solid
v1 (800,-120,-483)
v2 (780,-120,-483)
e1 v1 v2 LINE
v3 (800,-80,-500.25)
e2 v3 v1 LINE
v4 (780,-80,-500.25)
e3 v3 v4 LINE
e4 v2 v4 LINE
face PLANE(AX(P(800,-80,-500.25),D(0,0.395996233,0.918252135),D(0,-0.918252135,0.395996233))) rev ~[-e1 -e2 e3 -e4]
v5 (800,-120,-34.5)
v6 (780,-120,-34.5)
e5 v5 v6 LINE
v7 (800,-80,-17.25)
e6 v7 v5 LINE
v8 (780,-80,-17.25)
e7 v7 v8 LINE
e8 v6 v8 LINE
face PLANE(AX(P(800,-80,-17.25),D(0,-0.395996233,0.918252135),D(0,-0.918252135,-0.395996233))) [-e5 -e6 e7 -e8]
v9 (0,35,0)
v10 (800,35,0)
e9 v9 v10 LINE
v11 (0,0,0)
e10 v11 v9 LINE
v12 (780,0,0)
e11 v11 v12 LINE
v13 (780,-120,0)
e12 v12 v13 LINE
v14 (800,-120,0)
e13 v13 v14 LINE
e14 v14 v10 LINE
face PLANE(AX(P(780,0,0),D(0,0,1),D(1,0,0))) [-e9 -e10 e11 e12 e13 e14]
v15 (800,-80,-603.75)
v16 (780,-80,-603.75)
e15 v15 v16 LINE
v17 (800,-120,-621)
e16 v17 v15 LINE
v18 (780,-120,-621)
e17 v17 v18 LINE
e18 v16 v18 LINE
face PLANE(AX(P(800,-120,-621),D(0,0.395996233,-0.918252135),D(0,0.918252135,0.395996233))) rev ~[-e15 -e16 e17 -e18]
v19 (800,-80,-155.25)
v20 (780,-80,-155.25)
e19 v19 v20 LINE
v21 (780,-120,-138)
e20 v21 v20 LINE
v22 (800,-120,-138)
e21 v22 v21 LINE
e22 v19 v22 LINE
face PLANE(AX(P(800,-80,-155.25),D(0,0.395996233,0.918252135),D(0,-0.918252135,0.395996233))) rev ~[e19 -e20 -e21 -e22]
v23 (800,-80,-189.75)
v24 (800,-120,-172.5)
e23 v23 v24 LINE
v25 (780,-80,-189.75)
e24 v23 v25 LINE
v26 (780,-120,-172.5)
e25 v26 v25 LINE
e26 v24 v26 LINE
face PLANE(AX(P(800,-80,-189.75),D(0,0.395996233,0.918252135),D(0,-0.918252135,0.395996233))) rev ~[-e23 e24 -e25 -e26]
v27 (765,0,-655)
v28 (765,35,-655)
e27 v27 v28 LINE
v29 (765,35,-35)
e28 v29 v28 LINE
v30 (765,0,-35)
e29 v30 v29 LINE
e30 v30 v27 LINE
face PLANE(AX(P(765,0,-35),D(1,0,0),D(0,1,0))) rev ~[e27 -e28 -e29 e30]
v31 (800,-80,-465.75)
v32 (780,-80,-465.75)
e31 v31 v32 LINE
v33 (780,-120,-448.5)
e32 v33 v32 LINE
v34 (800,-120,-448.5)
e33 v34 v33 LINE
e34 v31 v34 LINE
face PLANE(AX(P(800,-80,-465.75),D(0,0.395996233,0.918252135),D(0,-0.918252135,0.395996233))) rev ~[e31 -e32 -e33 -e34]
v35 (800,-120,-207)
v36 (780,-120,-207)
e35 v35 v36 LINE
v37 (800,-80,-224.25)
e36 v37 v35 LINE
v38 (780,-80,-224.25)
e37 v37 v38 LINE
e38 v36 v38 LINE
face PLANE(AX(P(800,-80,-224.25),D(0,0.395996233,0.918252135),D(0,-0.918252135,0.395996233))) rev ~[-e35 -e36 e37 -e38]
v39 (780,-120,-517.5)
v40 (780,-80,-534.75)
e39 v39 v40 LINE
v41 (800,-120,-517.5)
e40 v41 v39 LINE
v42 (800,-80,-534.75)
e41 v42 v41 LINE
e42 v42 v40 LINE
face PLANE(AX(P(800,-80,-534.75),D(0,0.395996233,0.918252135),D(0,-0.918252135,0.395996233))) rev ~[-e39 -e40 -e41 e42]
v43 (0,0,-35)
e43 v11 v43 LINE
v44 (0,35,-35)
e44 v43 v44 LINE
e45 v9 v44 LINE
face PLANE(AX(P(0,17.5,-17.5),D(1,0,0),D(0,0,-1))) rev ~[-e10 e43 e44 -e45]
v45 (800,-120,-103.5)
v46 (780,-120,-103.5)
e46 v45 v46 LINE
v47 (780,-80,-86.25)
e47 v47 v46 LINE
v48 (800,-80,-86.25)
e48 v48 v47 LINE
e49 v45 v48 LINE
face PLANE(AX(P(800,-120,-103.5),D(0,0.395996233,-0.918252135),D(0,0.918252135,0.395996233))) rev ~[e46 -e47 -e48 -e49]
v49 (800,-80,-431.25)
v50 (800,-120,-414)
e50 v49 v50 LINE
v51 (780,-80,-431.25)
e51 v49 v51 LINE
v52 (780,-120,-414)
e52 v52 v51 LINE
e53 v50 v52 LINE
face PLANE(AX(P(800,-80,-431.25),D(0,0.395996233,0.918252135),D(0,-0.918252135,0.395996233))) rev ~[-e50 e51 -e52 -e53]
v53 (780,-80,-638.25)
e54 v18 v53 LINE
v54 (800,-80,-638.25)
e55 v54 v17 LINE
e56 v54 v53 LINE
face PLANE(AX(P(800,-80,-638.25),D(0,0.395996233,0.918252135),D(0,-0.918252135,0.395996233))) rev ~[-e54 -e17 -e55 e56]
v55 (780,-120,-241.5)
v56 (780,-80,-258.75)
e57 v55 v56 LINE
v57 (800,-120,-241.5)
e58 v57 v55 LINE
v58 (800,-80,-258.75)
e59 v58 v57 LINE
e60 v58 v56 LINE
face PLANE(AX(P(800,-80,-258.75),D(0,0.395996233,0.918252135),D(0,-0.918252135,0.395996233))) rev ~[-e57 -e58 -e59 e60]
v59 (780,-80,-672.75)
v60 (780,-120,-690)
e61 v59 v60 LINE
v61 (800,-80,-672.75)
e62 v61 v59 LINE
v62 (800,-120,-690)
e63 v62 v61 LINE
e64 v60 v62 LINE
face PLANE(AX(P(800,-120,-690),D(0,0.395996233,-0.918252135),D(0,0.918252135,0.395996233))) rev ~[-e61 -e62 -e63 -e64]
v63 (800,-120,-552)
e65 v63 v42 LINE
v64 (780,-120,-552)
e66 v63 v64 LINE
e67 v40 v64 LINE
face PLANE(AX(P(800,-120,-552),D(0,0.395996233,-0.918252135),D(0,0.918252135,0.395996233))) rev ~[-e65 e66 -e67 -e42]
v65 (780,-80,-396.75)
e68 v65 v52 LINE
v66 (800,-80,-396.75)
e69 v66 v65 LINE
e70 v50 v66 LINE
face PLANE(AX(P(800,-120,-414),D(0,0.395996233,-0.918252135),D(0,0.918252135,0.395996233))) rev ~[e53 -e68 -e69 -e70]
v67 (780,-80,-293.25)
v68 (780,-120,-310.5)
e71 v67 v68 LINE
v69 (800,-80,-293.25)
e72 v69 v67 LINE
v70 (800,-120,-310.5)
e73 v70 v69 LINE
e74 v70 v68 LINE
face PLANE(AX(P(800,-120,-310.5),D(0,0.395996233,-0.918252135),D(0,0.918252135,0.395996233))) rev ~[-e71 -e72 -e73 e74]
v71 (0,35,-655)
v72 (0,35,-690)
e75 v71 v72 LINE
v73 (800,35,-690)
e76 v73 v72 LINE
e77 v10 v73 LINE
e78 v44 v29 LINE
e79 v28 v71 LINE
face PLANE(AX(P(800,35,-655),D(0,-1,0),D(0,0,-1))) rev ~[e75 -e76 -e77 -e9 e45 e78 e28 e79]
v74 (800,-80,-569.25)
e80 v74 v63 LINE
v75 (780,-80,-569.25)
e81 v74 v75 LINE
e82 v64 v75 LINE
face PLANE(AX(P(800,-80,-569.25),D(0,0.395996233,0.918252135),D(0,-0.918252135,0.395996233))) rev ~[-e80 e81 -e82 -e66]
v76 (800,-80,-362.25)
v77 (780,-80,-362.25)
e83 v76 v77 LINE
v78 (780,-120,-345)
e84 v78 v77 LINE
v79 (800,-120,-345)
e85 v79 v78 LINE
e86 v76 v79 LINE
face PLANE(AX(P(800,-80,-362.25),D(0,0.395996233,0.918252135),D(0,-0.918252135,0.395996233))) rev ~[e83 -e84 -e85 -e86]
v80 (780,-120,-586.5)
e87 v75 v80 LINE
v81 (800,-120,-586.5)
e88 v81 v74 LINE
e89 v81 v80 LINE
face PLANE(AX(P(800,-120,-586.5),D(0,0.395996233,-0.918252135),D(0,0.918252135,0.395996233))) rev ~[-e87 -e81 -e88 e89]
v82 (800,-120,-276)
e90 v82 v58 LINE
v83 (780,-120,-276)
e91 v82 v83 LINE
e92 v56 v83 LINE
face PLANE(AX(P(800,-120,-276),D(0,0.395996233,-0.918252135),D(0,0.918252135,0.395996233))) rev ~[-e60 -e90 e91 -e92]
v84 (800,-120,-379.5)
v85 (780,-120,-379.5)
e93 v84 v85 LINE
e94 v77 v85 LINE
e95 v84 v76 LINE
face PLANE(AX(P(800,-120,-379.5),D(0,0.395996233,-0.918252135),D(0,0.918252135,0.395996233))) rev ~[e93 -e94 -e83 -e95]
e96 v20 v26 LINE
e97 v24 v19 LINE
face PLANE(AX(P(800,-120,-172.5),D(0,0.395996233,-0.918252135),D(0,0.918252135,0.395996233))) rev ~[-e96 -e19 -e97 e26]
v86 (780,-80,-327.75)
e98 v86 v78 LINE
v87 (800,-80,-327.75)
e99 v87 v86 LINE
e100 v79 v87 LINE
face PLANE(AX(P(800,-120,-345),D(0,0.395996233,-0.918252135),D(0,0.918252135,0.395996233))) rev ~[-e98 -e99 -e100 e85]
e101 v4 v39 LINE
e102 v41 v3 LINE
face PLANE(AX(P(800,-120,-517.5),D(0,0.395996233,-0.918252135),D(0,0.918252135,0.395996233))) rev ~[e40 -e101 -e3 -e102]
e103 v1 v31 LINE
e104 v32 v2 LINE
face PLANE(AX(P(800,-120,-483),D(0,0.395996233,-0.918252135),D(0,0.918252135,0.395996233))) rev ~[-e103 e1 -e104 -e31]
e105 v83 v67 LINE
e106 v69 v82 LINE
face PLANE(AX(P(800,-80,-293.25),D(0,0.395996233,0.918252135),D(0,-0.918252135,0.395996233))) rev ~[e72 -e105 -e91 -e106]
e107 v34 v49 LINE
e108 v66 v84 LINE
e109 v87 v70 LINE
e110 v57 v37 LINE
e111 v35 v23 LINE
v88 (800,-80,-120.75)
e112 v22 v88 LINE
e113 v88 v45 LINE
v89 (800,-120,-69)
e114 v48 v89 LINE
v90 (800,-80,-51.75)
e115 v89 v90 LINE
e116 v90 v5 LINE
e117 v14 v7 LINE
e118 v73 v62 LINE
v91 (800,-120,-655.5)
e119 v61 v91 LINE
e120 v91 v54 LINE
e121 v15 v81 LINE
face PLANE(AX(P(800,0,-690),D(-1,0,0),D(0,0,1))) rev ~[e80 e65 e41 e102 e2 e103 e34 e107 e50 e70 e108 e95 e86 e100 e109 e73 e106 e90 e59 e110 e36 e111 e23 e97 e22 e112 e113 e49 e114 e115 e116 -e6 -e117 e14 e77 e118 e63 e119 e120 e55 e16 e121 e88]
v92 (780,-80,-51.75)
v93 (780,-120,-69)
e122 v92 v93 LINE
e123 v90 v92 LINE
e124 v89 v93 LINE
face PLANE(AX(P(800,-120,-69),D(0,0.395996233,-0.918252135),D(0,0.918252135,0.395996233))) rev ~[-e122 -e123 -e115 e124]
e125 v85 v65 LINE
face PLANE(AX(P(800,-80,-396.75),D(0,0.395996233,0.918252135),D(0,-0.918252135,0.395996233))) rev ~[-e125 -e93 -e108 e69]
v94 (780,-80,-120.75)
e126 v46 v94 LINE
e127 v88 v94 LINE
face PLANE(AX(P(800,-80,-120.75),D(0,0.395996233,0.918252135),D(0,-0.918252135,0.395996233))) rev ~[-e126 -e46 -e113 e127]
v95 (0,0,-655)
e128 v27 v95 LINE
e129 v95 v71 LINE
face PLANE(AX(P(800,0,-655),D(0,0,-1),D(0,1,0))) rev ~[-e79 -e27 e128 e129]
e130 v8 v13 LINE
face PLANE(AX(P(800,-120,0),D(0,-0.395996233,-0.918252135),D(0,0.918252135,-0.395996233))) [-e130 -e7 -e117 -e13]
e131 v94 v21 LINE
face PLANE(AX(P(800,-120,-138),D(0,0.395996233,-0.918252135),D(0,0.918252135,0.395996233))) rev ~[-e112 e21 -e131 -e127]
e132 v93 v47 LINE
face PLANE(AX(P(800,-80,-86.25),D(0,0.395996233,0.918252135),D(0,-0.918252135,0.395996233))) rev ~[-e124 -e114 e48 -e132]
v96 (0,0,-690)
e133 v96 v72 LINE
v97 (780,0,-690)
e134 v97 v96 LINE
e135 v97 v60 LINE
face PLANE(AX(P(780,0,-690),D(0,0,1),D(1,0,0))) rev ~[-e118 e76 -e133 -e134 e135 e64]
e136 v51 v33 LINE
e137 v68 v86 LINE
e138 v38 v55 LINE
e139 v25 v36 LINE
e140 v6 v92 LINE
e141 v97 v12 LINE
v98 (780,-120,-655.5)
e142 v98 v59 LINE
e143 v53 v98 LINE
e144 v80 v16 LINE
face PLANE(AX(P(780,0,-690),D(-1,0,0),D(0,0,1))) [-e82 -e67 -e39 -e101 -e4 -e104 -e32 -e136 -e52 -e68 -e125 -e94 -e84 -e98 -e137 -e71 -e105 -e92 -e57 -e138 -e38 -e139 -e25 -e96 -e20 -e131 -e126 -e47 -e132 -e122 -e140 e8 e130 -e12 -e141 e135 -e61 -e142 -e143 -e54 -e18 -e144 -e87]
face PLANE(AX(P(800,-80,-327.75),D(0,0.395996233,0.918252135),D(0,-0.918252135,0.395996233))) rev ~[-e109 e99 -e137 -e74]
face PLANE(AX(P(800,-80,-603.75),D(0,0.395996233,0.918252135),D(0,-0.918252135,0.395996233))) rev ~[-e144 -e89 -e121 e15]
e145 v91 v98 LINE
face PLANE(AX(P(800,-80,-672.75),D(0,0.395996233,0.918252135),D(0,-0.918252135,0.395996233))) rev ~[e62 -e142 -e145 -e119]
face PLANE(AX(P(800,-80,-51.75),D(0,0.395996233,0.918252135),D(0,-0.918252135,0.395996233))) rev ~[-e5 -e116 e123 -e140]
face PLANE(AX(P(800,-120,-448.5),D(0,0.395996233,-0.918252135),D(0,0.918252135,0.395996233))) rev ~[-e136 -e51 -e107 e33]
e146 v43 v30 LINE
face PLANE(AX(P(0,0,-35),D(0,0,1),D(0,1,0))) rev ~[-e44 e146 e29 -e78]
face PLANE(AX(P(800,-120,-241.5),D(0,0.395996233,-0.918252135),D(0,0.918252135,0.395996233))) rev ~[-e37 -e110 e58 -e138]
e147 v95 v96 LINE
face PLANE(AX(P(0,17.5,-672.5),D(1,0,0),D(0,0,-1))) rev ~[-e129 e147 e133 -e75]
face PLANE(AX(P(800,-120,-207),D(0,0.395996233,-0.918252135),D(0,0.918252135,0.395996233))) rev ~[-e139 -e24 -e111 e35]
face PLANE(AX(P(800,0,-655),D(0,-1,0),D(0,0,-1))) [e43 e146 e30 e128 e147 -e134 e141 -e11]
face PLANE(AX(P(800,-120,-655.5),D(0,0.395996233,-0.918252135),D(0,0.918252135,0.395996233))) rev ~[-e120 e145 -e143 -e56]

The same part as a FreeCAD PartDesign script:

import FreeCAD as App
import Part
import Sketcher
from FreeCAD import Vector
Q = App.Units.Quantity


def add_polygon(sketch, points):
    """Adds a closed chain of lines whose ends are joined by coincident constraints."""
    first, n = sketch.GeometryCount, len(points)
    for a, b in zip(points, points[1:] + points[:1]):
        sketch.addGeometry(Part.LineSegment(App.Vector(*a, 0), App.Vector(*b, 0)), False)
    for i in range(n):
        sketch.addConstraint(Sketcher.Constraint("Coincident", first + i, 2, first + (i + 1) % n, 1))

doc = App.newDocument("Part")
params = doc.addObject("Spreadsheet::Sheet", "Params")
for row, (alias, value) in enumerate([
    ("sketch1_width", "35 mm"),
    ("pad1_length", "800 mm"),
    ("sketch2_width", "35 mm"),
    ("pad2_length", "620 mm"),
    ("sketch3_width", "35 mm"),
    ("pad3_length", "800 mm"),
    ("sketch4_width", "20 mm"),
    ("sketch4_height", "690 mm"),
    ("pad4_length", "120 mm"),
    ("sketch5_height", "34.5 mm"),
], start=1):
    params.set(f"A{row}", alias)
    params.set(f"B{row}", "=" + value)
    params.setAlias(f"B{row}", alias)

body = doc.addObject("PartDesign::Body", "Body")

# Sketch on YZ plane
sketch1 = body.newObject("Sketcher::SketchObject", "Sketch")
sketch1.AttachmentSupport = (doc.getObject("YZ_Plane"), [""])
sketch1.MapMode = "FlatFace"
add_polygon(sketch1, [(35, 0), (0, 0), (0, -35), (35, -35)])  # lines 0-3
sketch1.addConstraint(Sketcher.Constraint("Horizontal", 0))
sketch1.addConstraint(Sketcher.Constraint("Vertical", 1))
sketch1.addConstraint(Sketcher.Constraint("Horizontal", 2))
sketch1.addConstraint(Sketcher.Constraint("Vertical", 3))
sketch1.addConstraint(Sketcher.Constraint("Coincident", 0, 2, -1, 1))
sketch1.addConstraint(Sketcher.Constraint("Equal", 2, 1))
sketch1.addConstraint(Sketcher.Constraint("DistanceX", 0, 2, 0, 1, Q("35 mm")))
sketch1.setExpression("Constraints[10]", "Params.sketch1_width")
pad1 = body.newObject("PartDesign::Pad", "Pad")
pad1.Profile = sketch1
pad1.setExpression("Length", "Params.pad1_length")

# Sketch on XY plane
sketch2 = body.newObject("Sketcher::SketchObject", "Sketch001")
sketch2.AttachmentSupport = (doc.getObject("XY_Plane"), [""])
sketch2.MapMode = "FlatFace"
sketch2.AttachmentOffset = App.Placement(Vector(0, 0, -35), App.Rotation())
add_polygon(sketch2, [(800, 35), (800, 0), (765, 0), (765, 35)])  # lines 0-3
sketch2.addConstraint(Sketcher.Constraint("Vertical", 0))
sketch2.addConstraint(Sketcher.Constraint("Horizontal", 1))
sketch2.addConstraint(Sketcher.Constraint("Vertical", 2))
sketch2.addConstraint(Sketcher.Constraint("Horizontal", 3))
sketch2.addConstraint(Sketcher.Constraint("PointOnObject", 0, 2, -1))
sketch2.addConstraint(Sketcher.Constraint("Equal", 3, 0))
sketch2.addConstraint(Sketcher.Constraint("DistanceX", 1, 2, 1, 1, Q("35 mm")))
sketch2.addConstraint(Sketcher.Constraint("DistanceX", -1, 1, 0, 2, Q("800 mm")))
sketch2.setExpression("Constraints[10]", "Params.sketch2_width")
pad2 = body.newObject("PartDesign::Pad", "Pad001")
pad2.Profile = sketch2
pad2.setExpression("Length", "Params.pad2_length")
pad2.Reversed = True

# Sketch on YZ plane
sketch3 = body.newObject("Sketcher::SketchObject", "Sketch002")
sketch3.AttachmentSupport = (doc.getObject("YZ_Plane"), [""])
sketch3.MapMode = "FlatFace"
sketch3.AttachmentOffset = App.Placement(Vector(0, 0, 800), App.Rotation())
add_polygon(sketch3, [(35, -655), (0, -655), (0, -690), (35, -690)])  # lines 0-3
sketch3.addConstraint(Sketcher.Constraint("Horizontal", 0))
sketch3.addConstraint(Sketcher.Constraint("Vertical", 1))
sketch3.addConstraint(Sketcher.Constraint("Horizontal", 2))
sketch3.addConstraint(Sketcher.Constraint("Vertical", 3))
sketch3.addConstraint(Sketcher.Constraint("PointOnObject", 0, 2, -2))
sketch3.addConstraint(Sketcher.Constraint("Equal", 2, 1))
sketch3.addConstraint(Sketcher.Constraint("DistanceX", 0, 2, 0, 1, Q("35 mm")))
sketch3.addConstraint(Sketcher.Constraint("DistanceY", 0, 2, -1, 1, Q("655 mm")))
sketch3.setExpression("Constraints[10]", "Params.sketch3_width")
pad3 = body.newObject("PartDesign::Pad", "Pad002")
pad3.Profile = sketch3
pad3.setExpression("Length", "Params.pad3_length")
pad3.Reversed = True

# Sketch on XZ plane
sketch4 = body.newObject("Sketcher::SketchObject", "Sketch003")
sketch4.AttachmentSupport = (doc.getObject("XZ_Plane"), [""])
sketch4.MapMode = "FlatFace"
add_polygon(sketch4, [(780, 0), (780, -690), (800, -690), (800, 0)])  # lines 0-3
sketch4.addConstraint(Sketcher.Constraint("Vertical", 0))
sketch4.addConstraint(Sketcher.Constraint("Horizontal", 1))
sketch4.addConstraint(Sketcher.Constraint("Vertical", 2))
sketch4.addConstraint(Sketcher.Constraint("Horizontal", 3))
sketch4.addConstraint(Sketcher.Constraint("PointOnObject", 2, 2, -1))
sketch4.addConstraint(Sketcher.Constraint("DistanceX", 1, 1, 1, 2, Q("20 mm")))
sketch4.addConstraint(Sketcher.Constraint("DistanceY", 0, 2, 0, 1, Q("690 mm")))
sketch4.addConstraint(Sketcher.Constraint("DistanceX", -1, 1, 0, 2, Q("780 mm")))
sketch4.setExpression("Constraints[9]", "Params.sketch4_width")
sketch4.setExpression("Constraints[10]", "Params.sketch4_height")
pad4 = body.newObject("PartDesign::Pad", "Pad003")
pad4.Profile = sketch4
pad4.setExpression("Length", "Params.pad4_length")

# Sketch on YZ plane
sketch5 = body.newObject("Sketcher::SketchObject", "Sketch004")
sketch5.AttachmentSupport = (doc.getObject("YZ_Plane"), [""])
sketch5.MapMode = "FlatFace"
sketch5.AttachmentOffset = App.Placement(Vector(0, 0, 800), App.Rotation())
add_polygon(sketch5, [(-80, -51.75), (-120, -34.5), (-120, -69)])  # lines 0-2
add_polygon(sketch5, [(-80, -86.25), (-120, -69), (-120, -103.5)])  # lines 3-5
add_polygon(sketch5, [(-80, -120.75), (-120, -103.5), (-120, -138)])  # lines 6-8
add_polygon(sketch5, [(-80, -155.25), (-120, -138), (-120, -172.5)])  # lines 9-11
add_polygon(sketch5, [(-80, -189.75), (-120, -172.5), (-120, -207)])  # lines 12-14
add_polygon(sketch5, [(-80, -224.25), (-120, -207), (-120, -241.5)])  # lines 15-17
add_polygon(sketch5, [(-80, -258.75), (-120, -241.5), (-120, -276)])  # lines 18-20
add_polygon(sketch5, [(-80, -293.25), (-120, -276), (-120, -310.5)])  # lines 21-23
add_polygon(sketch5, [(-80, -327.75), (-120, -310.5), (-120, -345)])  # lines 24-26
add_polygon(sketch5, [(-80, -362.25), (-120, -345), (-120, -379.5)])  # lines 27-29
add_polygon(sketch5, [(-80, -396.75), (-120, -379.5), (-120, -414)])  # lines 30-32
add_polygon(sketch5, [(-80, -431.25), (-120, -414), (-120, -448.5)])  # lines 33-35
add_polygon(sketch5, [(-80, -465.75), (-120, -448.5), (-120, -483)])  # lines 36-38
add_polygon(sketch5, [(-80, -500.25), (-120, -483), (-120, -517.5)])  # lines 39-41
add_polygon(sketch5, [(-80, -534.75), (-120, -517.5), (-120, -552)])  # lines 42-44
add_polygon(sketch5, [(-80, -569.25), (-120, -552), (-120, -586.5)])  # lines 45-47
add_polygon(sketch5, [(-80, -603.75), (-120, -586.5), (-120, -621)])  # lines 48-50
add_polygon(sketch5, [(-80, -638.25), (-120, -621), (-120, -655.5)])  # lines 51-53
add_polygon(sketch5, [(-80, -672.75), (-120, -655.5), (-120, -690)])  # lines 54-56
add_polygon(sketch5, [(-120, -34.5), (-80, -17.25), (-120, 0)])  # lines 57-59
sketch5.addConstraint(Sketcher.Constraint("Vertical", 1))
sketch5.addConstraint(Sketcher.Constraint("Vertical", 4))
sketch5.addConstraint(Sketcher.Constraint("Vertical", 7))
sketch5.addConstraint(Sketcher.Constraint("Vertical", 10))
sketch5.addConstraint(Sketcher.Constraint("Vertical", 13))
sketch5.addConstraint(Sketcher.Constraint("Vertical", 16))
sketch5.addConstraint(Sketcher.Constraint("Vertical", 19))
sketch5.addConstraint(Sketcher.Constraint("Vertical", 22))
sketch5.addConstraint(Sketcher.Constraint("Vertical", 25))
sketch5.addConstraint(Sketcher.Constraint("Vertical", 28))
sketch5.addConstraint(Sketcher.Constraint("Vertical", 31))
sketch5.addConstraint(Sketcher.Constraint("Vertical", 34))
sketch5.addConstraint(Sketcher.Constraint("Vertical", 37))
sketch5.addConstraint(Sketcher.Constraint("Vertical", 40))
sketch5.addConstraint(Sketcher.Constraint("Vertical", 43))
sketch5.addConstraint(Sketcher.Constraint("Vertical", 46))
sketch5.addConstraint(Sketcher.Constraint("Vertical", 49))
sketch5.addConstraint(Sketcher.Constraint("Vertical", 52))
sketch5.addConstraint(Sketcher.Constraint("Vertical", 55))
sketch5.addConstraint(Sketcher.Constraint("Vertical", 59))
sketch5.addConstraint(Sketcher.Constraint("Coincident", 3, 2, 1, 2))
sketch5.addConstraint(Sketcher.Constraint("Coincident", 6, 2, 4, 2))
sketch5.addConstraint(Sketcher.Constraint("Coincident", 9, 2, 7, 2))
sketch5.addConstraint(Sketcher.Constraint("Coincident", 12, 2, 10, 2))
sketch5.addConstraint(Sketcher.Constraint("Coincident", 15, 2, 13, 2))
sketch5.addConstraint(Sketcher.Constraint("Coincident", 18, 2, 16, 2))
sketch5.addConstraint(Sketcher.Constraint("Coincident", 21, 2, 19, 2))
sketch5.addConstraint(Sketcher.Constraint("Coincident", 24, 2, 22, 2))
sketch5.addConstraint(Sketcher.Constraint("Coincident", 27, 2, 25, 2))
sketch5.addConstraint(Sketcher.Constraint("Coincident", 30, 2, 28, 2))
sketch5.addConstraint(Sketcher.Constraint("Coincident", 33, 2, 31, 2))
sketch5.addConstraint(Sketcher.Constraint("Coincident", 36, 2, 34, 2))
sketch5.addConstraint(Sketcher.Constraint("Coincident", 39, 2, 37, 2))
sketch5.addConstraint(Sketcher.Constraint("Coincident", 42, 2, 40, 2))
sketch5.addConstraint(Sketcher.Constraint("Coincident", 45, 2, 43, 2))
sketch5.addConstraint(Sketcher.Constraint("Coincident", 48, 2, 46, 2))
sketch5.addConstraint(Sketcher.Constraint("Coincident", 51, 2, 49, 2))
sketch5.addConstraint(Sketcher.Constraint("Coincident", 54, 2, 52, 2))
sketch5.addConstraint(Sketcher.Constraint("Coincident", 59, 2, 0, 2))
sketch5.addConstraint(Sketcher.Constraint("PointOnObject", 58, 2, -1))
sketch5.addConstraint(Sketcher.Constraint("Parallel", 0, 3))
sketch5.addConstraint(Sketcher.Constraint("Parallel", 2, 5))
sketch5.addConstraint(Sketcher.Constraint("Parallel", 3, 6))
sketch5.addConstraint(Sketcher.Constraint("Parallel", 5, 8))
sketch5.addConstraint(Sketcher.Constraint("Parallel", 6, 9))
sketch5.addConstraint(Sketcher.Constraint("Parallel", 8, 11))
sketch5.addConstraint(Sketcher.Constraint("Parallel", 9, 12))
sketch5.addConstraint(Sketcher.Constraint("Parallel", 11, 14))
sketch5.addConstraint(Sketcher.Constraint("Parallel", 12, 15))
sketch5.addConstraint(Sketcher.Constraint("Parallel", 14, 17))
sketch5.addConstraint(Sketcher.Constraint("Parallel", 15, 18))
sketch5.addConstraint(Sketcher.Constraint("Parallel", 17, 20))
sketch5.addConstraint(Sketcher.Constraint("Parallel", 18, 21))
sketch5.addConstraint(Sketcher.Constraint("Parallel", 20, 23))
sketch5.addConstraint(Sketcher.Constraint("Parallel", 21, 24))
sketch5.addConstraint(Sketcher.Constraint("Parallel", 23, 26))
sketch5.addConstraint(Sketcher.Constraint("Parallel", 24, 27))
sketch5.addConstraint(Sketcher.Constraint("Parallel", 26, 29))
sketch5.addConstraint(Sketcher.Constraint("Parallel", 27, 30))
sketch5.addConstraint(Sketcher.Constraint("Parallel", 29, 32))
sketch5.addConstraint(Sketcher.Constraint("Parallel", 30, 33))
sketch5.addConstraint(Sketcher.Constraint("Parallel", 32, 35))
sketch5.addConstraint(Sketcher.Constraint("Parallel", 33, 36))
sketch5.addConstraint(Sketcher.Constraint("Parallel", 35, 38))
sketch5.addConstraint(Sketcher.Constraint("Parallel", 36, 39))
sketch5.addConstraint(Sketcher.Constraint("Parallel", 38, 41))
sketch5.addConstraint(Sketcher.Constraint("Parallel", 39, 42))
sketch5.addConstraint(Sketcher.Constraint("Parallel", 41, 44))
sketch5.addConstraint(Sketcher.Constraint("Parallel", 42, 45))
sketch5.addConstraint(Sketcher.Constraint("Parallel", 44, 47))
sketch5.addConstraint(Sketcher.Constraint("Parallel", 45, 48))
sketch5.addConstraint(Sketcher.Constraint("Parallel", 47, 50))
sketch5.addConstraint(Sketcher.Constraint("Parallel", 48, 51))
sketch5.addConstraint(Sketcher.Constraint("Parallel", 50, 53))
sketch5.addConstraint(Sketcher.Constraint("Parallel", 51, 54))
sketch5.addConstraint(Sketcher.Constraint("Parallel", 53, 56))
sketch5.addConstraint(Sketcher.Constraint("Parallel", 56, 57))
sketch5.addConstraint(Sketcher.Constraint("Parallel", 54, 58))
sketch5.addConstraint(Sketcher.Constraint("Vertical", 2, 2, 5, 2))
sketch5.addConstraint(Sketcher.Constraint("Vertical", 5, 2, 8, 2))
sketch5.addConstraint(Sketcher.Constraint("Vertical", 8, 2, 11, 2))
sketch5.addConstraint(Sketcher.Constraint("Vertical", 11, 2, 14, 2))
sketch5.addConstraint(Sketcher.Constraint("Vertical", 14, 2, 17, 2))
sketch5.addConstraint(Sketcher.Constraint("Vertical", 17, 2, 20, 2))
sketch5.addConstraint(Sketcher.Constraint("Vertical", 20, 2, 23, 2))
sketch5.addConstraint(Sketcher.Constraint("Vertical", 23, 2, 26, 2))
sketch5.addConstraint(Sketcher.Constraint("Vertical", 26, 2, 29, 2))
sketch5.addConstraint(Sketcher.Constraint("Vertical", 29, 2, 32, 2))
sketch5.addConstraint(Sketcher.Constraint("Vertical", 32, 2, 35, 2))
sketch5.addConstraint(Sketcher.Constraint("Vertical", 35, 2, 38, 2))
sketch5.addConstraint(Sketcher.Constraint("Vertical", 38, 2, 41, 2))
sketch5.addConstraint(Sketcher.Constraint("Vertical", 41, 2, 44, 2))
sketch5.addConstraint(Sketcher.Constraint("Vertical", 44, 2, 47, 2))
sketch5.addConstraint(Sketcher.Constraint("Vertical", 47, 2, 50, 2))
sketch5.addConstraint(Sketcher.Constraint("Vertical", 50, 2, 53, 2))
sketch5.addConstraint(Sketcher.Constraint("Vertical", 53, 2, 56, 2))
sketch5.addConstraint(Sketcher.Constraint("Vertical", 56, 2, 57, 2))
sketch5.addConstraint(Sketcher.Constraint("Equal", 0, 2))
sketch5.addConstraint(Sketcher.Constraint("DistanceY", 1, 2, 1, 1, Q("34.5 mm")))
sketch5.addConstraint(Sketcher.Constraint("DistanceX", 0, 2, -1, 1, Q("120 mm")))
sketch5.addConstraint(Sketcher.Constraint("DistanceX", 2, 2, -1, 1, Q("80 mm")))
sketch5.setExpression("Constraints[158]", "Params.sketch5_height")
pocket1 = body.newObject("PartDesign::Pocket", "Pocket")
pocket1.Profile = sketch5
pocket1.Type = "ThroughAll"

doc.recompute()
